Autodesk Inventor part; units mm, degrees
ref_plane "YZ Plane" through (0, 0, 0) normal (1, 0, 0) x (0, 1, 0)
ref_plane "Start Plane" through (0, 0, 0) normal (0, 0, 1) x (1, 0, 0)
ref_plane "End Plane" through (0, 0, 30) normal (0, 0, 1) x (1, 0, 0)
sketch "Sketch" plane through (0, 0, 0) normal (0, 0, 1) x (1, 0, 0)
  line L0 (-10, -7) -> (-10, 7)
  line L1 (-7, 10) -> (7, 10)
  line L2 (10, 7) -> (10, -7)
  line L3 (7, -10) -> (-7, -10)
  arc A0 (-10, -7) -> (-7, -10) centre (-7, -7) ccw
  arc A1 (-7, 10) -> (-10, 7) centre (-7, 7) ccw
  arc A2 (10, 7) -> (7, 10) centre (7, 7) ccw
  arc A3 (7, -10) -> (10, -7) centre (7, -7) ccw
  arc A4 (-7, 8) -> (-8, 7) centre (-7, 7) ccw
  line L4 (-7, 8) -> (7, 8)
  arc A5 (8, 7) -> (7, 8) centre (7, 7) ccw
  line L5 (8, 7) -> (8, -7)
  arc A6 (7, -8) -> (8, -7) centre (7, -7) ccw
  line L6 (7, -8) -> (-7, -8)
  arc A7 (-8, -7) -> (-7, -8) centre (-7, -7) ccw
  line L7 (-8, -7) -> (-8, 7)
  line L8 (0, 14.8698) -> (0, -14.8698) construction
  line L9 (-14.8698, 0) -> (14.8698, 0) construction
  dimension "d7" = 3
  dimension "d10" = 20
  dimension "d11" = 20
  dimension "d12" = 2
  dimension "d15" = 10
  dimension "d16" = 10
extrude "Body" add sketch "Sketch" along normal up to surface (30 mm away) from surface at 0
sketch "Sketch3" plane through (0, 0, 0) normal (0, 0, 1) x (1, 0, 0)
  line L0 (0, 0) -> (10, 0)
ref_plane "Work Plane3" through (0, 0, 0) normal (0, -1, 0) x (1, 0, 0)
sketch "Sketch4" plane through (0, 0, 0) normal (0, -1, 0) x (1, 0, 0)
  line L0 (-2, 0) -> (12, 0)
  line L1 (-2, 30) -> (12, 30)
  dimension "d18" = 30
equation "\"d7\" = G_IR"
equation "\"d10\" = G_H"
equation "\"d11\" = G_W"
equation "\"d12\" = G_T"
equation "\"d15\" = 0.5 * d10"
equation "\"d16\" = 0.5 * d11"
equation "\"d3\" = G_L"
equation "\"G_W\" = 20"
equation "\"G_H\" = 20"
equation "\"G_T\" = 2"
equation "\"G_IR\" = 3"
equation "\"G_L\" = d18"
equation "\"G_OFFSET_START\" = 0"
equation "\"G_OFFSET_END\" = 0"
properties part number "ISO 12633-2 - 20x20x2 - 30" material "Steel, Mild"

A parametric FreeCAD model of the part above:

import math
import FreeCAD as App
import Part
import Sketcher
from FreeCAD import Vector

doc = App.newDocument("Part")
params = doc.addObject("Spreadsheet::Sheet", "Params")
for row, (alias, value) in enumerate([
    ("sketch1_radius", "3 mm"),
    ("sketch1_radius2", "1 mm"),
    ("pad1_length", "30 mm"),
], start=1):
    params.set(f"A{row}", alias)
    params.set(f"B{row}", "=" + value)
    params.setAlias(f"B{row}", alias)

body = doc.addObject("PartDesign::Body", "Body")

sketch1 = body.newObject("Sketcher::SketchObject", "Sketch")
sketch1.AttachmentSupport = (doc.getObject("XY_Plane"), [""])
sketch1.MapMode = "FlatFace"
sketch1.addGeometry(Part.LineSegment(Vector(-10, 7, 0), Vector(-10, -7, 0)), False)
sketch1.addGeometry(Part.ArcOfCircle(Part.Circle(Vector(-7, -7, 0), Vector(0, 0, 1), 3), math.radians(180), math.radians(270)), False)
sketch1.addGeometry(Part.LineSegment(Vector(-7, -10, 0), Vector(7, -10, 0)), False)
sketch1.addGeometry(Part.ArcOfCircle(Part.Circle(Vector(7, -7, 0), Vector(0, 0, 1), 3), math.radians(-90), math.radians(0)), False)
sketch1.addGeometry(Part.LineSegment(Vector(10, -7, 0), Vector(10, 7, 0)), False)
sketch1.addGeometry(Part.ArcOfCircle(Part.Circle(Vector(7, 7, 0), Vector(0, 0, 1), 3), math.radians(0), math.radians(90)), False)
sketch1.addGeometry(Part.LineSegment(Vector(7, 10, 0), Vector(-7, 10, 0)), False)
sketch1.addGeometry(Part.ArcOfCircle(Part.Circle(Vector(-7, 7, 0), Vector(0, 0, 1), 3), math.radians(90), math.radians(180)), False)
sketch1.addGeometry(Part.ArcOfCircle(Part.Circle(Vector(-7, 7, 0), Vector(0, 0, 1), 1), math.radians(90), math.radians(180)), False)
sketch1.addGeometry(Part.LineSegment(Vector(-7, 8, 0), Vector(7, 8, 0)), False)
sketch1.addGeometry(Part.ArcOfCircle(Part.Circle(Vector(7, 7, 0), Vector(0, 0, 1), 1), math.radians(0), math.radians(90)), False)
sketch1.addGeometry(Part.LineSegment(Vector(8, 7, 0), Vector(8, -7, 0)), False)
sketch1.addGeometry(Part.ArcOfCircle(Part.Circle(Vector(7, -7, 0), Vector(0, 0, 1), 1), math.radians(-90), math.radians(0)), False)
sketch1.addGeometry(Part.LineSegment(Vector(7, -8, 0), Vector(-7, -8, 0)), False)
sketch1.addGeometry(Part.ArcOfCircle(Part.Circle(Vector(-7, -7, 0), Vector(0, 0, 1), 1), math.radians(180), math.radians(270)), False)
sketch1.addGeometry(Part.LineSegment(Vector(-8, -7, 0), Vector(-8, 7, 0)), False)
sketch1.addConstraint(Sketcher.Constraint("Tangent", 0, 2, 1, 1))
sketch1.addConstraint(Sketcher.Constraint("Tangent", 1, 2, 2, 1))
sketch1.addConstraint(Sketcher.Constraint("Tangent", 2, 2, 3, 1))
sketch1.addConstraint(Sketcher.Constraint("Tangent", 3, 2, 4, 1))
sketch1.addConstraint(Sketcher.Constraint("Tangent", 4, 2, 5, 1))
sketch1.addConstraint(Sketcher.Constraint("Tangent", 5, 2, 6, 1))
sketch1.addConstraint(Sketcher.Constraint("Tangent", 6, 2, 7, 1))
sketch1.addConstraint(Sketcher.Constraint("Tangent", 7, 2, 0, 1))
sketch1.addConstraint(Sketcher.Constraint("Tangent", 8, 1, 9, 1))
sketch1.addConstraint(Sketcher.Constraint("Tangent", 9, 2, 10, 2))
sketch1.addConstraint(Sketcher.Constraint("Tangent", 10, 1, 11, 1))
sketch1.addConstraint(Sketcher.Constraint("Tangent", 11, 2, 12, 2))
sketch1.addConstraint(Sketcher.Constraint("Tangent", 12, 1, 13, 1))
sketch1.addConstraint(Sketcher.Constraint("Tangent", 13, 2, 14, 2))
sketch1.addConstraint(Sketcher.Constraint("Tangent", 14, 1, 15, 1))
sketch1.addConstraint(Sketcher.Constraint("Tangent", 15, 2, 8, 2))
sketch1.addConstraint(Sketcher.Constraint("Vertical", 0))
sketch1.addConstraint(Sketcher.Constraint("Horizontal", 2))
sketch1.addConstraint(Sketcher.Constraint("Vertical", 4))
sketch1.addConstraint(Sketcher.Constraint("Horizontal", 6))
sketch1.addConstraint(Sketcher.Constraint("Horizontal", 9))
sketch1.addConstraint(Sketcher.Constraint("Vertical", 11))
sketch1.addConstraint(Sketcher.Constraint("Horizontal", 13))
sketch1.addConstraint(Sketcher.Constraint("Vertical", 15))
sketch1.addConstraint(Sketcher.Constraint("Coincident", 8, 3, 7, 3))
sketch1.addConstraint(Sketcher.Constraint("Coincident", 10, 3, 5, 3))
sketch1.addConstraint(Sketcher.Constraint("Coincident", 12, 3, 3, 3))
sketch1.addConstraint(Sketcher.Constraint("Equal", 1, 3))
sketch1.addConstraint(Sketcher.Constraint("Equal", 3, 5))
sketch1.addConstraint(Sketcher.Constraint("Equal", 5, 7))
sketch1.addConstraint(Sketcher.Constraint("Equal", 12, 14))
sketch1.addConstraint(Sketcher.Constraint("Symmetric", 1, 3, 5, 3, -1, 1))
sketch1.addConstraint(Sketcher.Constraint("Equal", 13, 0))
sketch1.addConstraint(Sketcher.Constraint("Radius", 1, 3.0))
sketch1.addConstraint(Sketcher.Constraint("Radius", 8, 1.0))
sketch1.addConstraint(Sketcher.Constraint("DistanceX", 0, 2, -1, 1, 10.0))
sketch1.setExpression("Constraints[33]", "Params.sketch1_radius")
sketch1.setExpression("Constraints[34]", "Params.sketch1_radius2")
pad1 = body.newObject("PartDesign::Pad", "Pad")
pad1.Profile = sketch1
pad1.setExpression("Length", "Params.pad1_length")

doc.recompute()
